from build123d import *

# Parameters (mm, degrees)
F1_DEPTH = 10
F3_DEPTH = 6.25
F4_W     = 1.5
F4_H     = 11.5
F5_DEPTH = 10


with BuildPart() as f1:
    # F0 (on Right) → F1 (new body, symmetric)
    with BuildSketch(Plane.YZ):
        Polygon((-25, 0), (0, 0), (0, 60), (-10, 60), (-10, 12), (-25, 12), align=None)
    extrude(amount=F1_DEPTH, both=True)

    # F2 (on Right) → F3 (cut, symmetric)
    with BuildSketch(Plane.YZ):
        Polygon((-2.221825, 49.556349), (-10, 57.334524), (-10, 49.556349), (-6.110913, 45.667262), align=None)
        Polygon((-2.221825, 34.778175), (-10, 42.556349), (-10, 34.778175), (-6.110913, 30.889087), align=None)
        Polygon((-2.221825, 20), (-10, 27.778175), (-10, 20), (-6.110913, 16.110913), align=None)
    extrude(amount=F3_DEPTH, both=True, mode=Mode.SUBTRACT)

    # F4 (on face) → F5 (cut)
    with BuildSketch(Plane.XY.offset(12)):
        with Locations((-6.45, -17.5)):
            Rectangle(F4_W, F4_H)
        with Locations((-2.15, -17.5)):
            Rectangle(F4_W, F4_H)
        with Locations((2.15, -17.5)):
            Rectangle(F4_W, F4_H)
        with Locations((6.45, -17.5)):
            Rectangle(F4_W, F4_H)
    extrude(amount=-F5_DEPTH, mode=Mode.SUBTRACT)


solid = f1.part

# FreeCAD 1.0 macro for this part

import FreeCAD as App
import Part
import Sketcher
from FreeCAD import Vector

doc = App.newDocument("Part")
body = doc.addObject("PartDesign::Body", "Body")

# Sketch on YZ plane
sketch1 = body.newObject("Sketcher::SketchObject", "Sketch")
sketch1.AttachmentSupport = (doc.getObject("YZ_Plane"), [""])
sketch1.MapMode = "FlatFace"
sketch1.addGeometry(Part.LineSegment(Vector(-25, 0, 0), Vector(0, 0, 0)), False)
sketch1.addGeometry(Part.LineSegment(Vector(0, 0, 0), Vector(0, 60, 0)), False)
sketch1.addGeometry(Part.LineSegment(Vector(0, 60, 0), Vector(-10, 60, 0)), False)
sketch1.addGeometry(Part.LineSegment(Vector(-10, 60, 0), Vector(-10, 12, 0)), False)
sketch1.addGeometry(Part.LineSegment(Vector(-10, 12, 0), Vector(-25, 12, 0)), False)
sketch1.addGeometry(Part.LineSegment(Vector(-25, 12, 0), Vector(-25, 0, 0)), False)
sketch1.addConstraint(Sketcher.Constraint("Coincident", 0, 2, 1, 1))
sketch1.addConstraint(Sketcher.Constraint("Coincident", 1, 2, 2, 1))
sketch1.addConstraint(Sketcher.Constraint("Coincident", 2, 2, 3, 1))
sketch1.addConstraint(Sketcher.Constraint("Coincident", 3, 2, 4, 1))
sketch1.addConstraint(Sketcher.Constraint("Coincident", 4, 2, 5, 1))
sketch1.addConstraint(Sketcher.Constraint("Coincident", 5, 2, 0, 1))
sketch1.addConstraint(Sketcher.Constraint("Horizontal", 0))
sketch1.addConstraint(Sketcher.Constraint("Vertical", 1))
sketch1.addConstraint(Sketcher.Constraint("Horizontal", 2))
sketch1.addConstraint(Sketcher.Constraint("Vertical", 3))
sketch1.addConstraint(Sketcher.Constraint("Horizontal", 4))
sketch1.addConstraint(Sketcher.Constraint("Vertical", 5))
sketch1.addConstraint(Sketcher.Constraint("Coincident", 0, 2, -1, 1))
sketch1.addConstraint(Sketcher.Constraint("DistanceX", 0, 1, 0, 2, 25.0))
sketch1.addConstraint(Sketcher.Constraint("DistanceX", 2, 2, 2, 1, 10.0))
sketch1.addConstraint(Sketcher.Constraint("DistanceY", 1, 1, 1, 2, 60.0))
sketch1.addConstraint(Sketcher.Constraint("DistanceY", 3, 2, 3, 1, 48.0))
pad1 = body.newObject("PartDesign::Pad", "Pad")
pad1.Profile = sketch1
pad1.Length = 20
pad1.Midplane = True

# Sketch on YZ plane
sketch2 = body.newObject("Sketcher::SketchObject", "Sketch001")
sketch2.AttachmentSupport = (doc.getObject("YZ_Plane"), [""])
sketch2.MapMode = "FlatFace"
sketch2.addGeometry(Part.LineSegment(Vector(-2.221825, 49.556349, 0), Vector(-10, 57.334524, 0)), False)
sketch2.addGeometry(Part.LineSegment(Vector(-10, 57.334524, 0), Vector(-10, 49.556349, 0)), False)
sketch2.addGeometry(Part.LineSegment(Vector(-10, 49.556349, 0), Vector(-6.110913, 45.667262, 0)), False)
sketch2.addGeometry(Part.LineSegment(Vector(-6.110913, 45.667262, 0), Vector(-2.221825, 49.556349, 0)), False)
sketch2.addGeometry(Part.LineSegment(Vector(-2.221825, 34.778175, 0), Vector(-10, 42.556349, 0)), False)
sketch2.addGeometry(Part.LineSegment(Vector(-10, 42.556349, 0), Vector(-10, 34.778175, 0)), False)
sketch2.addGeometry(Part.LineSegment(Vector(-10, 34.778175, 0), Vector(-6.110913, 30.889087, 0)), False)
sketch2.addGeometry(Part.LineSegment(Vector(-6.110913, 30.889087, 0), Vector(-2.221825, 34.778175, 0)), False)
sketch2.addGeometry(Part.LineSegment(Vector(-2.221825, 20, 0), Vector(-10, 27.778175, 0)), False)
sketch2.addGeometry(Part.LineSegment(Vector(-10, 27.778175, 0), Vector(-10, 20, 0)), False)
sketch2.addGeometry(Part.LineSegment(Vector(-10, 20, 0), Vector(-6.110913, 16.110913, 0)), False)
sketch2.addGeometry(Part.LineSegment(Vector(-6.110913, 16.110913, 0), Vector(-2.221825, 20, 0)), False)
sketch2.addConstraint(Sketcher.Constraint("Coincident", 0, 2, 1, 1))
sketch2.addConstraint(Sketcher.Constraint("Coincident", 1, 2, 2, 1))
sketch2.addConstraint(Sketcher.Constraint("Coincident", 2, 2, 3, 1))
sketch2.addConstraint(Sketcher.Constraint("Coincident", 3, 2, 0, 1))
sketch2.addConstraint(Sketcher.Constraint("Coincident", 4, 2, 5, 1))
sketch2.addConstraint(Sketcher.Constraint("Coincident", 5, 2, 6, 1))
sketch2.addConstraint(Sketcher.Constraint("Coincident", 6, 2, 7, 1))
sketch2.addConstraint(Sketcher.Constraint("Coincident", 7, 2, 4, 1))
sketch2.addConstraint(Sketcher.Constraint("Coincident", 8, 2, 9, 1))
sketch2.addConstraint(Sketcher.Constraint("Coincident", 9, 2, 10, 1))
sketch2.addConstraint(Sketcher.Constraint("Coincident", 10, 2, 11, 1))
sketch2.addConstraint(Sketcher.Constraint("Coincident", 11, 2, 8, 1))
sketch2.addConstraint(Sketcher.Constraint("Vertical", 1))
sketch2.addConstraint(Sketcher.Constraint("Vertical", 5))
sketch2.addConstraint(Sketcher.Constraint("Vertical", 9))
sketch2.addConstraint(Sketcher.Constraint("Parallel", 0, 2))
sketch2.addConstraint(Sketcher.Constraint("Perpendicular", 2, 3))
sketch2.addConstraint(Sketcher.Constraint("Perpendicular", 3, 4))
sketch2.addConstraint(Sketcher.Constraint("Parallel", 4, 6))
sketch2.addConstraint(Sketcher.Constraint("Perpendicular", 6, 7))
sketch2.addConstraint(Sketcher.Constraint("Perpendicular", 7, 8))
sketch2.addConstraint(Sketcher.Constraint("Parallel", 8, 10))
sketch2.addConstraint(Sketcher.Constraint("Perpendicular", 10, 11))
sketch2.addConstraint(Sketcher.Constraint("Horizontal", 1, 2, 3, 2))
sketch2.addConstraint(Sketcher.Constraint("Horizontal", 5, 2, 7, 2))
sketch2.addConstraint(Sketcher.Constraint("Horizontal", 9, 2, 11, 2))
sketch2.addConstraint(Sketcher.Constraint("Vertical", 1, 2, 4, 2))
sketch2.addConstraint(Sketcher.Constraint("Vertical", 2, 2, 6, 2))
sketch2.addConstraint(Sketcher.Constraint("Vertical", 5, 2, 8, 2))
sketch2.addConstraint(Sketcher.Constraint("Vertical", 6, 2, 10, 2))
sketch2.addConstraint(Sketcher.Constraint("Equal", 2, 3))
sketch2.addConstraint(Sketcher.Constraint("Distance", 0, 11.000001))
sketch2.addConstraint(Sketcher.Constraint("DistanceX", 0, 2, -1, 1, 10.0))
sketch2.addConstraint(Sketcher.Constraint("DistanceY", -1, 1, 9, 2, 20.0))
sketch2.addConstraint(Sketcher.Constraint("DistanceY", 4, 2, 1, 2, 7.0))
sketch2.addConstraint(Sketcher.Constraint("DistanceY", 8, 2, 5, 2, 7.0))
pocket1 = body.newObject("PartDesign::Pocket", "Pocket")
pocket1.Profile = sketch2
pocket1.Length = 12.5
pocket1.Midplane = True

# Sketch on XY plane
sketch3 = body.newObject("Sketcher::SketchObject", "Sketch002")
sketch3.AttachmentSupport = (doc.getObject("XY_Plane"), [""])
sketch3.MapMode = "FlatFace"
sketch3.AttachmentOffset = App.Placement(Vector(0, 0, 12), App.Rotation())
sketch3.addGeometry(Part.LineSegment(Vector(-7.2, -11.75, 0), Vector(-7.2, -23.25, 0)), False)
sketch3.addGeometry(Part.LineSegment(Vector(-7.2, -23.25, 0), Vector(-5.7, -23.25, 0)), False)
sketch3.addGeometry(Part.LineSegment(Vector(-5.7, -23.25, 0), Vector(-5.7, -11.75, 0)), False)
sketch3.addGeometry(Part.LineSegment(Vector(-5.7, -11.75, 0), Vector(-7.2, -11.75, 0)), False)
sketch3.addGeometry(Part.LineSegment(Vector(-2.9, -11.75, 0), Vector(-2.9, -23.25, 0)), False)
sketch3.addGeometry(Part.LineSegment(Vector(-2.9, -23.25, 0), Vector(-1.4, -23.25, 0)), False)
sketch3.addGeometry(Part.LineSegment(Vector(-1.4, -23.25, 0), Vector(-1.4, -11.75, 0)), False)
sketch3.addGeometry(Part.LineSegment(Vector(-1.4, -11.75, 0), Vector(-2.9, -11.75, 0)), False)
sketch3.addGeometry(Part.LineSegment(Vector(1.4, -11.75, 0), Vector(1.4, -23.25, 0)), False)
sketch3.addGeometry(Part.LineSegment(Vector(1.4, -23.25, 0), Vector(2.9, -23.25, 0)), False)
sketch3.addGeometry(Part.LineSegment(Vector(2.9, -23.25, 0), Vector(2.9, -11.75, 0)), False)
sketch3.addGeometry(Part.LineSegment(Vector(2.9, -11.75, 0), Vector(1.4, -11.75, 0)), False)
sketch3.addGeometry(Part.LineSegment(Vector(5.7, -11.75, 0), Vector(5.7, -23.25, 0)), False)
sketch3.addGeometry(Part.LineSegment(Vector(5.7, -23.25, 0), Vector(7.2, -23.25, 0)), False)
sketch3.addGeometry(Part.LineSegment(Vector(7.2, -23.25, 0), Vector(7.2, -11.75, 0)), False)
sketch3.addGeometry(Part.LineSegment(Vector(7.2, -11.75, 0), Vector(5.7, -11.75, 0)), False)
sketch3.addConstraint(Sketcher.Constraint("Coincident", 0, 2, 1, 1))
sketch3.addConstraint(Sketcher.Constraint("Coincident", 1, 2, 2, 1))
sketch3.addConstraint(Sketcher.Constraint("Coincident", 2, 2, 3, 1))
sketch3.addConstraint(Sketcher.Constraint("Coincident", 3, 2, 0, 1))
sketch3.addConstraint(Sketcher.Constraint("Coincident", 4, 2, 5, 1))
sketch3.addConstraint(Sketcher.Constraint("Coincident", 5, 2, 6, 1))
sketch3.addConstraint(Sketcher.Constraint("Coincident", 6, 2, 7, 1))
sketch3.addConstraint(Sketcher.Constraint("Coincident", 7, 2, 4, 1))
sketch3.addConstraint(Sketcher.Constraint("Coincident", 8, 2, 9, 1))
sketch3.addConstraint(Sketcher.Constraint("Coincident", 9, 2, 10, 1))
sketch3.addConstraint(Sketcher.Constraint("Coincident", 10, 2, 11, 1))
sketch3.addConstraint(Sketcher.Constraint("Coincident", 11, 2, 8, 1))
sketch3.addConstraint(Sketcher.Constraint("Coincident", 12, 2, 13, 1))
sketch3.addConstraint(Sketcher.Constraint("Coincident", 13, 2, 14, 1))
sketch3.addConstraint(Sketcher.Constraint("Coincident", 14, 2, 15, 1))
sketch3.addConstraint(Sketcher.Constraint("Coincident", 15, 2, 12, 1))
sketch3.addConstraint(Sketcher.Constraint("Vertical", 0))
sketch3.addConstraint(Sketcher.Constraint("Horizontal", 1))
sketch3.addConstraint(Sketcher.Constraint("Vertical", 2))
sketch3.addConstraint(Sketcher.Constraint("Horizontal", 3))
sketch3.addConstraint(Sketcher.Constraint("Vertical", 4))
sketch3.addConstraint(Sketcher.Constraint("Horizontal", 5))
sketch3.addConstraint(Sketcher.Constraint("Vertical", 6))
sketch3.addConstraint(Sketcher.Constraint("Horizontal", 7))
sketch3.addConstraint(Sketcher.Constraint("Vertical", 8))
sketch3.addConstraint(Sketcher.Constraint("Horizontal", 9))
sketch3.addConstraint(Sketcher.Constraint("Vertical", 10))
sketch3.addConstraint(Sketcher.Constraint("Horizontal", 11))
sketch3.addConstraint(Sketcher.Constraint("Vertical", 12))
sketch3.addConstraint(Sketcher.Constraint("Horizontal", 13))
sketch3.addConstraint(Sketcher.Constraint("Vertical", 14))
sketch3.addConstraint(Sketcher.Constraint("Horizontal", 15))
sketch3.addConstraint(Sketcher.Constraint("Symmetric", 5, 2, 8, 2, -2))
sketch3.addConstraint(Sketcher.Constraint("Symmetric", 7, 2, 10, 2, -2))
sketch3.addConstraint(Sketcher.Constraint("Symmetric", 1, 2, 12, 2, -2))
sketch3.addConstraint(Sketcher.Constraint("Symmetric", 3, 2, 14, 2, -2))
sketch3.addConstraint(Sketcher.Constraint("Horizontal", 1, 2, 4, 2))
sketch3.addConstraint(Sketcher.Constraint("Horizontal", 3, 2, 6, 2))
sketch3.addConstraint(Sketcher.Constraint("Equal", 3, 5))
sketch3.addConstraint(Sketcher.Constraint("DistanceX", 1, 1, 1, 2, 1.5))
sketch3.addConstraint(Sketcher.Constraint("DistanceY", 0, 2, 0, 1, 11.5))
sketch3.addConstraint(Sketcher.Constraint("DistanceX", 0, 2, -1, 1, 7.2))
sketch3.addConstraint(Sketcher.Constraint("DistanceX", 4, 2, -1, 1, 2.9))
sketch3.addConstraint(Sketcher.Constraint("DistanceY", 0, 2, -1, 1, 23.25))
pocket2 = body.newObject("PartDesign::Pocket", "Pocket001")
pocket2.Profile = sketch3
pocket2.Length = 10

doc.recompute()
